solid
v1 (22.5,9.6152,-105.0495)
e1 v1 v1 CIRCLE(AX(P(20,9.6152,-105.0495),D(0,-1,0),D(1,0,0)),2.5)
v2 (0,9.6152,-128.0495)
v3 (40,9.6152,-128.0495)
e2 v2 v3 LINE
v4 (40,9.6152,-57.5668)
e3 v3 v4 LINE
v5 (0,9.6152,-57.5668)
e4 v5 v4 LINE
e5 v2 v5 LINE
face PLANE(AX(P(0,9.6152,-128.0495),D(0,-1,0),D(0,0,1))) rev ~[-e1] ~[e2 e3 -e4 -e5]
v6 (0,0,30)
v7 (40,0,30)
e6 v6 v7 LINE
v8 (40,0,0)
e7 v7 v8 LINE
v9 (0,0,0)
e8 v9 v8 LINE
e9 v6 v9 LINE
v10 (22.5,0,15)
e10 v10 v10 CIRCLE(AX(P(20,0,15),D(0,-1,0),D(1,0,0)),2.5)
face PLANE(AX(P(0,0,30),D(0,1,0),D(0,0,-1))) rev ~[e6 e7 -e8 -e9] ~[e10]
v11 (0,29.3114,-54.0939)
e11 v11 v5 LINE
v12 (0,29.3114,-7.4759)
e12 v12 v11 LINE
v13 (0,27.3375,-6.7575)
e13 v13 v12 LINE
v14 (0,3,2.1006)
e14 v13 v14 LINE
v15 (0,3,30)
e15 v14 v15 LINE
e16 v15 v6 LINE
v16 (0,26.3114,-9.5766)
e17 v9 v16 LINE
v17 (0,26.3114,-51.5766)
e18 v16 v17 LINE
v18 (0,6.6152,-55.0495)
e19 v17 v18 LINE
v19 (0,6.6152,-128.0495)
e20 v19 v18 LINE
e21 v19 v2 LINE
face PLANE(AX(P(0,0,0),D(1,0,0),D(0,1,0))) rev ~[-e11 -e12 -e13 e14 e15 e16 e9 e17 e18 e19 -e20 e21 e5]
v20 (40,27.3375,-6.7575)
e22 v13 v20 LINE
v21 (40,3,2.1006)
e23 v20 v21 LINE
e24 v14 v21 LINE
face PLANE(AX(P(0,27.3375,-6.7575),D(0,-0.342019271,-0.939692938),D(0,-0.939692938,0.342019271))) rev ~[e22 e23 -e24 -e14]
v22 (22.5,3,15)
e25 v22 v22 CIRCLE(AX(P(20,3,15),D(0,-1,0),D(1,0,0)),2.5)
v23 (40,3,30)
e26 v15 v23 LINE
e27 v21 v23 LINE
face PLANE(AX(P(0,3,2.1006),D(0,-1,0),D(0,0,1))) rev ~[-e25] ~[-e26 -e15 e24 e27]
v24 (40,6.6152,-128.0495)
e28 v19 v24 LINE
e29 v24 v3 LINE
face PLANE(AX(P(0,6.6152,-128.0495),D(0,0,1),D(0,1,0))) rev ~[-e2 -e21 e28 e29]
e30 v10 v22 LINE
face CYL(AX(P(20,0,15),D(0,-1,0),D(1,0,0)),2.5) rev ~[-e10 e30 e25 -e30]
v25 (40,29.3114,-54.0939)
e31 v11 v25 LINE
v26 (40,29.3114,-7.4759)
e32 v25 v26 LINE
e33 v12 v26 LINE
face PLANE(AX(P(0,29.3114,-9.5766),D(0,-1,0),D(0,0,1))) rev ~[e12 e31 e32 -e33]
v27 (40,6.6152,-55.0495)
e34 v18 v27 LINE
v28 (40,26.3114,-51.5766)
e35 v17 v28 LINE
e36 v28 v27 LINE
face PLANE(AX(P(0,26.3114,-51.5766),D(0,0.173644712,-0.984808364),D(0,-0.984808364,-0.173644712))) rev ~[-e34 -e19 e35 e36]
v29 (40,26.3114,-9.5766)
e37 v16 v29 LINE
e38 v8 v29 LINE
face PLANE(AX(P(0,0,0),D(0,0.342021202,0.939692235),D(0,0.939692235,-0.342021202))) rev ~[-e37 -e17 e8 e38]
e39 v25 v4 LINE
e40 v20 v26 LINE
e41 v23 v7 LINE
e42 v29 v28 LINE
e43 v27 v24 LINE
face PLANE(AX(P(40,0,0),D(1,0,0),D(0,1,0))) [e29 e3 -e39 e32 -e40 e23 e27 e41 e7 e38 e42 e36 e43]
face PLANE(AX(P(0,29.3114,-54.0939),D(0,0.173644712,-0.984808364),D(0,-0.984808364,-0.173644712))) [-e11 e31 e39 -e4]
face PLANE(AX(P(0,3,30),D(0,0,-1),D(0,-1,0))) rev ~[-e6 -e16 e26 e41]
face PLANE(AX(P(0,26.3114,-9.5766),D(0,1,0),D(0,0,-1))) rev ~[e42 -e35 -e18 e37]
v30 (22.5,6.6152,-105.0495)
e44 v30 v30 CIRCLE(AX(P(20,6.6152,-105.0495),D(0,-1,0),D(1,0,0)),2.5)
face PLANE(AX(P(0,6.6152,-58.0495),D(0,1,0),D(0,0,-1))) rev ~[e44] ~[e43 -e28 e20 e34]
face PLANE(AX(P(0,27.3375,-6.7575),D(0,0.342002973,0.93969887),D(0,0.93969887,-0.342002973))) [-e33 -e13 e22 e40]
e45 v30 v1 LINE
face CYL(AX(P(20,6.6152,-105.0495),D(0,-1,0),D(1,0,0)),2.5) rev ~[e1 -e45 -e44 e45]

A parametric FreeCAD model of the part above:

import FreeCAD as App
import Part
import Sketcher
from FreeCAD import Vector
Q = App.Units.Quantity


def add_polygon(sketch, points):
    """Adds a closed chain of lines whose ends are joined by coincident constraints."""
    first, n = sketch.GeometryCount, len(points)
    for a, b in zip(points, points[1:] + points[:1]):
        sketch.addGeometry(Part.LineSegment(App.Vector(*a, 0), App.Vector(*b, 0)), False)
    for i in range(n):
        sketch.addConstraint(Sketcher.Constraint("Coincident", first + i, 2, first + (i + 1) % n, 1))

doc = App.newDocument("Part")
body = doc.addObject("PartDesign::Body", "Body")

# Sketch on YZ plane
sketch1 = body.newObject("Sketcher::SketchObject", "Sketch")
sketch1.AttachmentSupport = (doc.getObject("YZ_Plane"), [""])
sketch1.MapMode = "FlatFace"
add_polygon(sketch1, [(3, 2.1), (3, 30), (0, 30), (0, 0), (26.3, -9.6), (26.3, -51.6), (6.6, -55), (6.6, -128), (9.6, -128), (9.6, -57.6), (29.3, -54.1), (29.3, -7.5), (27.3, -6.8)])  # lines 0-12
sketch1.addConstraint(Sketcher.Constraint("Vertical", 0))
sketch1.addConstraint(Sketcher.Constraint("Horizontal", 1))
sketch1.addConstraint(Sketcher.Constraint("Vertical", 2))
sketch1.addConstraint(Sketcher.Constraint("Vertical", 4))
sketch1.addConstraint(Sketcher.Constraint("Vertical", 6))
sketch1.addConstraint(Sketcher.Constraint("Horizontal", 7))
sketch1.addConstraint(Sketcher.Constraint("Vertical", 8))
sketch1.addConstraint(Sketcher.Constraint("Vertical", 10))
sketch1.addConstraint(Sketcher.Constraint("Coincident", 2, 2, -1, 1))
sketch1.addConstraint(Sketcher.Constraint("Parallel", 5, 9))
sketch1.addConstraint(Sketcher.Constraint("Parallel", 3, 11))
sketch1.addConstraint(Sketcher.Constraint("Parallel", 11, 12))
sketch1.addConstraint(Sketcher.Constraint("Equal", 1, 7))
sketch1.addConstraint(Sketcher.Constraint("Equal", 5, 9))
sketch1.addConstraint(Sketcher.Constraint("DistanceX", 1, 2, 1, 1, Q("3 mm")))
sketch1.addConstraint(Sketcher.Constraint("DistanceY", 6, 2, 6, 1, Q("73 mm")))
sketch1.addConstraint(Sketcher.Constraint("Angle", 3, Q("-20 deg")))
sketch1.addConstraint(Sketcher.Constraint("Distance", 3, Q("28 mm")))
sketch1.addConstraint(Sketcher.Constraint("Distance", 5, Q("20 mm")))
sketch1.addConstraint(Sketcher.Constraint("DistanceY", 2, 2, 2, 1, Q("30 mm")))
sketch1.addConstraint(Sketcher.Constraint("DistanceY", 4, 2, 4, 1, Q("42 mm")))
sketch1.addConstraint(Sketcher.Constraint("Angle", 5, Q("-170.0002 deg")))
sketch1.addConstraint(Sketcher.Constraint("DistanceY", 10, 1, 10, 2, Q("46.618 mm")))
sketch1.addConstraint(Sketcher.Constraint("DistanceY", 0, 1, 0, 2, Q("27.8994 mm")))
sketch1.addConstraint(Sketcher.Constraint("DistanceX", 11, 2, 10, 2, Q("1.974 mm")))
pad1 = body.newObject("PartDesign::Pad", "Pad")
pad1.Profile = sketch1
pad1.Length = 40

# Sketch on XZ plane
sketch2 = body.newObject("Sketcher::SketchObject", "Sketch001")
sketch2.AttachmentSupport = (doc.getObject("XZ_Plane"), [""])
sketch2.MapMode = "FlatFace"
sketch2.addGeometry(Part.Circle(Vector(20, 15, 0), Vector(0, 0, 1), 2.5), False)
sketch2.addConstraint(Sketcher.Constraint("Diameter", 0, Q("5 mm")))
sketch2.addConstraint(Sketcher.Constraint("DistanceX", -1, 1, 0, 3, Q("20 mm")))
sketch2.addConstraint(Sketcher.Constraint("DistanceY", -1, 1, 0, 3, Q("15 mm")))
pocket1 = body.newObject("PartDesign::Pocket", "Pocket")
pocket1.Profile = sketch2
pocket1.Length = 3

# Sketch on XZ plane
sketch3 = body.newObject("Sketcher::SketchObject", "Sketch002")
sketch3.AttachmentSupport = (doc.getObject("XZ_Plane"), [""])
sketch3.MapMode = "FlatFace"
sketch3.AttachmentOffset = App.Placement(Vector(0, 0, -6.6152), App.Rotation())
sketch3.addGeometry(Part.Circle(Vector(20, -105, 0), Vector(0, 0, 1), 2.5), False)
sketch3.addConstraint(Sketcher.Constraint("Diameter", 0, Q("5 mm")))
sketch3.addConstraint(Sketcher.Constraint("DistanceX", -1, 1, 0, 3, Q("20 mm")))
sketch3.addConstraint(Sketcher.Constraint("DistanceY", 0, 3, -1, 1, Q("105.0495 mm")))
pocket2 = body.newObject("PartDesign::Pocket", "Pocket001")
pocket2.Profile = sketch3
pocket2.Length = 3

doc.recompute()
